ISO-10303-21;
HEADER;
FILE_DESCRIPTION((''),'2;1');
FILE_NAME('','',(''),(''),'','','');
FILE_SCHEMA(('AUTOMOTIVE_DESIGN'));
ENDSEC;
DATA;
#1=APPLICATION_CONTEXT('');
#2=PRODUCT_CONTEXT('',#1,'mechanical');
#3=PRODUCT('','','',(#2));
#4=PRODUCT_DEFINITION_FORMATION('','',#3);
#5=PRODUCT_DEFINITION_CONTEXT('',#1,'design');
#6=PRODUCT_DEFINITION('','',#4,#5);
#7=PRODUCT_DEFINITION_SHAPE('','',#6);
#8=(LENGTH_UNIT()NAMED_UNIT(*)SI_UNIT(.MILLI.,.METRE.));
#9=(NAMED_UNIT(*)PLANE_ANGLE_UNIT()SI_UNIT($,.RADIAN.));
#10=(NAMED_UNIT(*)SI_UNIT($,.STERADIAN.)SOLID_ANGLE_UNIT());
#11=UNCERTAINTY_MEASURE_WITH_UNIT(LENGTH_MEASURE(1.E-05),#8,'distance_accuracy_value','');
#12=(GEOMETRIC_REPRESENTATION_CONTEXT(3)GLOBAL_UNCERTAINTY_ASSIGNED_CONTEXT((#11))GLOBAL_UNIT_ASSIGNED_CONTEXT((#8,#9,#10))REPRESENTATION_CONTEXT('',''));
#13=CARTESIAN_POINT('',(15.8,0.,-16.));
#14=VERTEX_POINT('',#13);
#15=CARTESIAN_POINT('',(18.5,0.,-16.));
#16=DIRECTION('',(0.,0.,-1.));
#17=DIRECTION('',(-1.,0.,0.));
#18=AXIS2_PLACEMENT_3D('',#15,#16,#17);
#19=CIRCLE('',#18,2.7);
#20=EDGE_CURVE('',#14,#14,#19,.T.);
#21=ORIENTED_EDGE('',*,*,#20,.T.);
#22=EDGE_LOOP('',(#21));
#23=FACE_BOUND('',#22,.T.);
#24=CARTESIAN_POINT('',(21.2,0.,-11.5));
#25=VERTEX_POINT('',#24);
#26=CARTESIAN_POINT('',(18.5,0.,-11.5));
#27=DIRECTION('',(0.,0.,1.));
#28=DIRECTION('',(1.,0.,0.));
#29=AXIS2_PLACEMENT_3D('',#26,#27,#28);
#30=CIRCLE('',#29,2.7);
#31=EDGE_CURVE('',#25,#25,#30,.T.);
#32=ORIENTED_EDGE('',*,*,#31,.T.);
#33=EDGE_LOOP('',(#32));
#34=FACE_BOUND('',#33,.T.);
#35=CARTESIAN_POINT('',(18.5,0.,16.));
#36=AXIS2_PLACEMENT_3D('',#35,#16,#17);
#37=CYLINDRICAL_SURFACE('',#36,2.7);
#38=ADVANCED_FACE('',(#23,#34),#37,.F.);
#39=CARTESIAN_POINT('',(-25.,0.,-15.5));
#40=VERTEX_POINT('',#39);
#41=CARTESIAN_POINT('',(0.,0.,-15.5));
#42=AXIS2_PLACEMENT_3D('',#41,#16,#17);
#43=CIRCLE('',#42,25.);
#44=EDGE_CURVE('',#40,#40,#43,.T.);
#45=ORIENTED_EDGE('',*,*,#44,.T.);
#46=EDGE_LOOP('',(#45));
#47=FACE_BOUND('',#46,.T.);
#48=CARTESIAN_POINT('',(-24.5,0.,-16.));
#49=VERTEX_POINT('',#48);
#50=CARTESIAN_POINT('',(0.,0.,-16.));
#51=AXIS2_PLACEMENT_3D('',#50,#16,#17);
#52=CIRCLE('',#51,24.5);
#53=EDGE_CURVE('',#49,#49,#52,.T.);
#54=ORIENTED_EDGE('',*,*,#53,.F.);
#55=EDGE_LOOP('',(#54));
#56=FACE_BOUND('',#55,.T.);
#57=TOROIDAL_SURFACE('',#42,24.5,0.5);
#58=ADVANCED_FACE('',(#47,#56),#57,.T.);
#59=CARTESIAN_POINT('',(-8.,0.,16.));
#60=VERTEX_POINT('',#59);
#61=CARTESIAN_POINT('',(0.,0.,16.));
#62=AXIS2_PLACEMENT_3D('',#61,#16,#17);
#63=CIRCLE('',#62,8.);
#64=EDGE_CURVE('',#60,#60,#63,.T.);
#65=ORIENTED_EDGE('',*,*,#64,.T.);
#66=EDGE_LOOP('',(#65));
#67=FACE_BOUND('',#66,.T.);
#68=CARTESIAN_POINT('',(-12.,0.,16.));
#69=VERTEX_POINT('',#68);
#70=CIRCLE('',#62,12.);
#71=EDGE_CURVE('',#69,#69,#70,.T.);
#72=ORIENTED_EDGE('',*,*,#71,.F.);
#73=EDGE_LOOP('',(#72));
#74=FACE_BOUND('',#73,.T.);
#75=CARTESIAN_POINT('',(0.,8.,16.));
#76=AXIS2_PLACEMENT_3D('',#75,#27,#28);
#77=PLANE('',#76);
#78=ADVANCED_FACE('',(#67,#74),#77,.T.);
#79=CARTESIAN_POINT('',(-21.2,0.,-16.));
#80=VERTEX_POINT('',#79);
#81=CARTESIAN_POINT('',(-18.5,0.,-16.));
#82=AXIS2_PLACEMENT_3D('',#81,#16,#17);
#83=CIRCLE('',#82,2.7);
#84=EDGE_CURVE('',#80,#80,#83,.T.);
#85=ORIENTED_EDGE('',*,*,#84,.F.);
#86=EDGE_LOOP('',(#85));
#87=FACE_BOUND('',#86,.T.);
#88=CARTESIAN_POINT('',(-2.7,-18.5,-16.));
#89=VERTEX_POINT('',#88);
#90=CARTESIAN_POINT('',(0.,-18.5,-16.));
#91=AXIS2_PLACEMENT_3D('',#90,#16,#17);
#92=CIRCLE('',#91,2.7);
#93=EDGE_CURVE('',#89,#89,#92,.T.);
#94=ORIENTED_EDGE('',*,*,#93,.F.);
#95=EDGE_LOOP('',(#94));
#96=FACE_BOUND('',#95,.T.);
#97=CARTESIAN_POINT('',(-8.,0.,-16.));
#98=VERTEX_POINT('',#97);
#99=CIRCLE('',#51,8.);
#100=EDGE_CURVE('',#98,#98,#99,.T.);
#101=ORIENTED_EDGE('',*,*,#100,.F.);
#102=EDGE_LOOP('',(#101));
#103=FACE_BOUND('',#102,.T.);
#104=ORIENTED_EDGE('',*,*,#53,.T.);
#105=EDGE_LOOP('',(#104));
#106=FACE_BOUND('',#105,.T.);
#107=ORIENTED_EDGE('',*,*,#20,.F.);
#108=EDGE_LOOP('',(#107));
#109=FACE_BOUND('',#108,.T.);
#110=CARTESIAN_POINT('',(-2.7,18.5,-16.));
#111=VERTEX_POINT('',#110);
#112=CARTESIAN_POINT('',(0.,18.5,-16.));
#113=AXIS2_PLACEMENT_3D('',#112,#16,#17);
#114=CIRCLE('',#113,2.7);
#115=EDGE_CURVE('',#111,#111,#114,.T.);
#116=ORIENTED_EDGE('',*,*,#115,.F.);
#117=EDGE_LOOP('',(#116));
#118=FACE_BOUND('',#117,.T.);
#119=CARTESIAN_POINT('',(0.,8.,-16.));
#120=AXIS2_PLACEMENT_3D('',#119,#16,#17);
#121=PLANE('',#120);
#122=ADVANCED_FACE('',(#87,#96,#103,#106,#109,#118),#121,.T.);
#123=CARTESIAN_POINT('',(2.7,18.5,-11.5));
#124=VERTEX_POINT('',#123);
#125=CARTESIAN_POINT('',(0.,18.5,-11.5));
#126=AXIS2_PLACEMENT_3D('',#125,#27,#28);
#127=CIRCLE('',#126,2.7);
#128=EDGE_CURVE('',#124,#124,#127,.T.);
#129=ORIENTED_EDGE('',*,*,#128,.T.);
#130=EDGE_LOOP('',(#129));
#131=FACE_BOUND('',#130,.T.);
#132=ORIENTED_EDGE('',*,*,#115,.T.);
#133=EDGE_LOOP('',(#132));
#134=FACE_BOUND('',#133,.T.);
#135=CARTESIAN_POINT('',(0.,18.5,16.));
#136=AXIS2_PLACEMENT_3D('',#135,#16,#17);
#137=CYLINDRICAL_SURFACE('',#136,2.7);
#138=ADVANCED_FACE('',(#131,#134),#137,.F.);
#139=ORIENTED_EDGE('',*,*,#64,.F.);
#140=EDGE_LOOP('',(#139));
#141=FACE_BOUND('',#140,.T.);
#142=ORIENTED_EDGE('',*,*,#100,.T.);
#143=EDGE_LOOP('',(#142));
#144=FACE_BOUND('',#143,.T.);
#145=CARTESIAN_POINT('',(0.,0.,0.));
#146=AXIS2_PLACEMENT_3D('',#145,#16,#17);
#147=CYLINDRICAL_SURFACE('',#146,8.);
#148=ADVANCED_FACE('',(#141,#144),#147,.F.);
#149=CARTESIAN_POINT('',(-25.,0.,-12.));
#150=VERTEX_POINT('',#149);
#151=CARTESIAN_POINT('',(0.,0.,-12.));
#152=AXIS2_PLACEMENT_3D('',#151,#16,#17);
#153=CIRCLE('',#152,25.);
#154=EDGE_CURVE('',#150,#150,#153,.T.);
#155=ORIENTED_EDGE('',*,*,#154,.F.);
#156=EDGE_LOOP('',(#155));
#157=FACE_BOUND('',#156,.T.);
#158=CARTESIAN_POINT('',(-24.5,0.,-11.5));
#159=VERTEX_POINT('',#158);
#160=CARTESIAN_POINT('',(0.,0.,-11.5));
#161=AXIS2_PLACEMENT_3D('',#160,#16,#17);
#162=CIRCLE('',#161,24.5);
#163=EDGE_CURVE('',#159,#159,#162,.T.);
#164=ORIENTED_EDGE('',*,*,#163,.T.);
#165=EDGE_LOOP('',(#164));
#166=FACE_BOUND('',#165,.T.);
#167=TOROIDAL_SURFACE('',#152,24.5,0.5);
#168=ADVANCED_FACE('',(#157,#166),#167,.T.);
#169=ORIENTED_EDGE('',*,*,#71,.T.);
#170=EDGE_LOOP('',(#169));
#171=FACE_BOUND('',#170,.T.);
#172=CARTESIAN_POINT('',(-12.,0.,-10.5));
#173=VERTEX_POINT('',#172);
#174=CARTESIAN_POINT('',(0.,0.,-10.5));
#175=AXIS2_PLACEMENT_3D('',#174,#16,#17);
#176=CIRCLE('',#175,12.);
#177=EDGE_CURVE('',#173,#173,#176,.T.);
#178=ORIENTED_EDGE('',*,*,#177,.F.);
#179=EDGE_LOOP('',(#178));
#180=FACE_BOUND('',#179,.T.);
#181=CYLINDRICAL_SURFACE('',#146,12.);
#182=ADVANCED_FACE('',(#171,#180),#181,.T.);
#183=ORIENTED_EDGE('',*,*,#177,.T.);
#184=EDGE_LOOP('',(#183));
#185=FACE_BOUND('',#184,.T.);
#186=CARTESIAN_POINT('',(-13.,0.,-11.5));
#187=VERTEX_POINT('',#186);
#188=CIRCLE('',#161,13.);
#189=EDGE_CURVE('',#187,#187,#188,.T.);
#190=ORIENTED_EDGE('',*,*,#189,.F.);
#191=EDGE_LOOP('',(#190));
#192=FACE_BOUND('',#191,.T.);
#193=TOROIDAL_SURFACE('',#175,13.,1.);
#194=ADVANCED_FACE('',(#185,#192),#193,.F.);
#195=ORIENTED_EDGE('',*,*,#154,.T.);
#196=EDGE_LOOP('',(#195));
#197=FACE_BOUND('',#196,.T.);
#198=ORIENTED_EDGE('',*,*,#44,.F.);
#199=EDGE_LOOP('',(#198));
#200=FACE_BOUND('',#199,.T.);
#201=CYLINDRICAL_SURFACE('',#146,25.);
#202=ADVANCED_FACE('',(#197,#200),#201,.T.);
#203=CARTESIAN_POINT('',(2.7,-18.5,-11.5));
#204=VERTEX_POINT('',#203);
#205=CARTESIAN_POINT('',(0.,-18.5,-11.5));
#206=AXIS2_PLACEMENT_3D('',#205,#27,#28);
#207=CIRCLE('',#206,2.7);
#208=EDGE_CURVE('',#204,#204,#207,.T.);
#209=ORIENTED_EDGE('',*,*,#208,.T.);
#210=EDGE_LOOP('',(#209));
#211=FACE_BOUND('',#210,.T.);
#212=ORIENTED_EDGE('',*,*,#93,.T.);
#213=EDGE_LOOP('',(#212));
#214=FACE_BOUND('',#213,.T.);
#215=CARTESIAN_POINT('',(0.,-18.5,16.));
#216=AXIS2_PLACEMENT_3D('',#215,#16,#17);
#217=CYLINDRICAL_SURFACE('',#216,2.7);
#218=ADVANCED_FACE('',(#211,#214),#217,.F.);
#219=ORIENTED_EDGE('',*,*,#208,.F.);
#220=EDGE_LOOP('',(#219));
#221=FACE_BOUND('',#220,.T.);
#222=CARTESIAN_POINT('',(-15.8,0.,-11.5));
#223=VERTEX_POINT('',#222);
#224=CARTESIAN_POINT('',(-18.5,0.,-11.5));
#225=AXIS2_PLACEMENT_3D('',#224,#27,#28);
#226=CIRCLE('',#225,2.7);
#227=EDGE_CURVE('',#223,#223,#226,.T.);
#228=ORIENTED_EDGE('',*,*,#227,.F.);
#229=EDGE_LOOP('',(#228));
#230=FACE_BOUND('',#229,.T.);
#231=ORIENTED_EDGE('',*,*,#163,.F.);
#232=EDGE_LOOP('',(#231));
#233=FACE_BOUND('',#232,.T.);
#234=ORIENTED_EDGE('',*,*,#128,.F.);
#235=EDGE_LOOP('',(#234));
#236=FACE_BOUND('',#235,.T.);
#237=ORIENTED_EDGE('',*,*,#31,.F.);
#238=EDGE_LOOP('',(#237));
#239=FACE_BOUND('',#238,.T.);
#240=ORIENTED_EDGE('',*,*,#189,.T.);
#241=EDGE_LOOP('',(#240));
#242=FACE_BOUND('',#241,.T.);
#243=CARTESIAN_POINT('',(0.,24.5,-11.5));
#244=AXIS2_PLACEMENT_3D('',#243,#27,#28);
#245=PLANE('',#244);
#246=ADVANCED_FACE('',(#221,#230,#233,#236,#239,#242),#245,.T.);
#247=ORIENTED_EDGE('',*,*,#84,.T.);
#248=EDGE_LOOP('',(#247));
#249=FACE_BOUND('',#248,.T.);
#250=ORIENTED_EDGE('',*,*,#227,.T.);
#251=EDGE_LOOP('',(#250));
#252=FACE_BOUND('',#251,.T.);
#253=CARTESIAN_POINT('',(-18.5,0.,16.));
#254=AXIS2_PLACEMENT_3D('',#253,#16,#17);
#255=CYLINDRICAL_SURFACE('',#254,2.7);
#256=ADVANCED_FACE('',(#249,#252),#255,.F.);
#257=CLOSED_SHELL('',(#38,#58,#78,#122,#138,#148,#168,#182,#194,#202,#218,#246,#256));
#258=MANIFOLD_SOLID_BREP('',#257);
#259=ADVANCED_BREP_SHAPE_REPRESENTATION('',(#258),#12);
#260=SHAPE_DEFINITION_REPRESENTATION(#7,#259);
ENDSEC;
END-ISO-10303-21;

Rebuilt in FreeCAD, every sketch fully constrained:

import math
import FreeCAD as App
import Part
import Sketcher
Q = App.Units.Quantity

doc = App.newDocument("Part")
body = doc.addObject("PartDesign::Body", "Body")

sketch1 = body.newObject("Sketcher::SketchObject", "Sketch")
sketch1.AttachmentSupport = (doc.getObject("YZ_Plane"), [""])
sketch1.MapMode = "FlatFace"
sketch1.addGeometry(Part.LineSegment(App.Vector(8, 16, 0), App.Vector(8, -16, 0)), False)
sketch1.addGeometry(Part.LineSegment(App.Vector(8, -16, 0), App.Vector(24.5, -16, 0)), False)
sketch1.addGeometry(Part.ArcOfCircle(Part.Circle(App.Vector(24.5, -15.5, 0), App.Vector(0, 0, 1), 0.5), math.radians(-90), math.radians(0)), False)
sketch1.addGeometry(Part.LineSegment(App.Vector(25, -15.5, 0), App.Vector(25, -12, 0)), False)
sketch1.addGeometry(Part.ArcOfCircle(Part.Circle(App.Vector(24.5, -12, 0), App.Vector(0, 0, 1), 0.5), math.radians(0), math.radians(90)), False)
sketch1.addGeometry(Part.LineSegment(App.Vector(24.5, -11.5, 0), App.Vector(13, -11.5, 0)), False)
sketch1.addGeometry(Part.ArcOfCircle(Part.Circle(App.Vector(13, -10.5, 0), App.Vector(0, 0, 1), 1), math.radians(-180), math.radians(-90)), False)
sketch1.addGeometry(Part.LineSegment(App.Vector(12, -10.5, 0), App.Vector(12, 16, 0)), False)
sketch1.addGeometry(Part.LineSegment(App.Vector(12, 16, 0), App.Vector(8, 16, 0)), False)
sketch1.addConstraint(Sketcher.Constraint("Coincident", 0, 2, 1, 1))
sketch1.addConstraint(Sketcher.Constraint("Tangent", 1, 2, 2, 1))
sketch1.addConstraint(Sketcher.Constraint("Tangent", 2, 2, 3, 1))
sketch1.addConstraint(Sketcher.Constraint("Tangent", 3, 2, 4, 1))
sketch1.addConstraint(Sketcher.Constraint("Tangent", 4, 2, 5, 1))
sketch1.addConstraint(Sketcher.Constraint("Tangent", 5, 2, 6, 2))
sketch1.addConstraint(Sketcher.Constraint("Tangent", 6, 1, 7, 1))
sketch1.addConstraint(Sketcher.Constraint("Coincident", 7, 2, 8, 1))
sketch1.addConstraint(Sketcher.Constraint("Coincident", 8, 2, 0, 1))
sketch1.addConstraint(Sketcher.Constraint("Vertical", 0))
sketch1.addConstraint(Sketcher.Constraint("Horizontal", 1))
sketch1.addConstraint(Sketcher.Constraint("Vertical", 3))
sketch1.addConstraint(Sketcher.Constraint("Horizontal", 5))
sketch1.addConstraint(Sketcher.Constraint("Vertical", 7))
sketch1.addConstraint(Sketcher.Constraint("Horizontal", 8))
sketch1.addConstraint(Sketcher.Constraint("Equal", 2, 4))
sketch1.addConstraint(Sketcher.Constraint("Radius", 6, Q("1 mm")))
sketch1.addConstraint(Sketcher.Constraint("Radius", 2, Q("0.5 mm")))
sketch1.addConstraint(Sketcher.Constraint("DistanceX", 8, 2, 8, 1, Q("4 mm")))
sketch1.addConstraint(Sketcher.Constraint("DistanceY", 0, 2, 0, 1, Q("32 mm")))
sketch1.addConstraint(Sketcher.Constraint("DistanceX", 1, 1, 1, 2, Q("16.5 mm")))
sketch1.addConstraint(Sketcher.Constraint("DistanceY", 3, 1, 3, 2, Q("3.5 mm")))
sketch1.addConstraint(Sketcher.Constraint("DistanceY", 4, 3, -1, 1, Q("12 mm")))
sketch1.addConstraint(Sketcher.Constraint("DistanceX", -1, 1, 6, 3, Q("13 mm")))
revolution = body.newObject("PartDesign::Revolution", "Revolution")
revolution.Profile = sketch1
revolution.ReferenceAxis = (sketch1, ["V_Axis"])
revolution.Angle = 360

sketch2 = body.newObject("Sketcher::SketchObject", "Sketch001")
sketch2.AttachmentSupport = (doc.getObject("XY_Plane"), [""])
sketch2.MapMode = "FlatFace"
sketch2.AttachmentOffset = App.Placement(App.Vector(0, 0, -16), App.Rotation())
sketch2.addGeometry(Part.Circle(App.Vector(0, 18.5, 0), App.Vector(0, 0, 1), 2.7), False)
sketch2.addGeometry(Part.Circle(App.Vector(-18.5, 0, 0), App.Vector(0, 0, 1), 2.7), False)
sketch2.addGeometry(Part.Circle(App.Vector(0, -18.5, 0), App.Vector(0, 0, 1), 2.7), False)
sketch2.addGeometry(Part.Circle(App.Vector(18.5, 0, 0), App.Vector(0, 0, 1), 2.7), False)
sketch2.addConstraint(Sketcher.Constraint("Equal", 0, 1))
sketch2.addConstraint(Sketcher.Constraint("Equal", 1, 2))
sketch2.addConstraint(Sketcher.Constraint("Equal", 2, 3))
sketch2.addConstraint(Sketcher.Constraint("Symmetric", 0, 3, 2, 3, -1, 1))
sketch2.addConstraint(Sketcher.Constraint("Symmetric", 1, 3, 3, 3, -1, 1))
sketch2.addConstraint(Sketcher.Constraint("PointOnObject", 0, 3, -2))
sketch2.addConstraint(Sketcher.Constraint("PointOnObject", 1, 3, -1))
sketch2.addConstraint(Sketcher.Constraint("Diameter", 0, Q("5.4 mm")))
sketch2.addConstraint(Sketcher.Constraint("DistanceY", 2, 3, 0, 3, Q("37 mm")))
sketch2.addConstraint(Sketcher.Constraint("DistanceX", 1, 3, 3, 3, Q("37 mm")))
pocket1 = body.newObject("PartDesign::Pocket", "Pocket")
pocket1.Profile = sketch2
pocket1.Type = "ThroughAll"
pocket1.Midplane = True

doc.recompute()
